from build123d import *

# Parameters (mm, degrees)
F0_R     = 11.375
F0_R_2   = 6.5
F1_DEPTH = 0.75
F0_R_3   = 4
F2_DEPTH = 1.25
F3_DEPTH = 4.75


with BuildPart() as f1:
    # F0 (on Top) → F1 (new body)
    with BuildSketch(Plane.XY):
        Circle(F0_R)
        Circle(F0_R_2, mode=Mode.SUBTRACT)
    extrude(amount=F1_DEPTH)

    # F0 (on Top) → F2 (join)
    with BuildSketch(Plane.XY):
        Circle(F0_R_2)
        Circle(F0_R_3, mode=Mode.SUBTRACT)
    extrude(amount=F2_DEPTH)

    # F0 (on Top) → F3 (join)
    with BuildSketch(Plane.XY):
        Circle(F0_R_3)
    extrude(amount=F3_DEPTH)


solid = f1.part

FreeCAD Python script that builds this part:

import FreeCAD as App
import Part
import Sketcher

V = App.Vector

doc = App.newDocument("Part")
body = doc.addObject("PartDesign::Body", "Body")

sketch1 = body.newObject("Sketcher::SketchObject", "Sketch")
sketch1.AttachmentSupport = (doc.getObject("XY_Plane"), [""])
sketch1.MapMode = "FlatFace"
sketch1.addGeometry(Part.Circle(V(0, 0, 0), V(0, 0, 1), 11), False)
sketch1.addGeometry(Part.Circle(V(0, 0, 0), V(0, 0, 1), 6), False)
sketch1.addConstraint(Sketcher.Constraint("Coincident", 0, 3, -1, 1))
sketch1.addConstraint(Sketcher.Constraint("Coincident", 1, 3, -1, 1))
sketch1.addConstraint(Sketcher.Constraint("Diameter", 1, 13.0))
sketch1.addConstraint(Sketcher.Constraint("Diameter", 0, 22.75))
pad1 = body.newObject("PartDesign::Pad", "Pad")
pad1.Profile = sketch1
pad1.Length = 0.75

sketch2 = body.newObject("Sketcher::SketchObject", "Sketch001")
sketch2.AttachmentSupport = (doc.getObject("XY_Plane"), [""])
sketch2.MapMode = "FlatFace"
sketch2.addGeometry(Part.Circle(V(0, 0, 0), V(0, 0, 1), 6.5), False)
sketch2.addGeometry(Part.Circle(V(0, 0, 0), V(0, 0, 1), 4), False)
sketch2.addConstraint(Sketcher.Constraint("Coincident", 0, 3, -1, 1))
sketch2.addConstraint(Sketcher.Constraint("Coincident", 1, 3, -1, 1))
sketch2.addConstraint(Sketcher.Constraint("Diameter", 0, 13.0))
sketch2.addConstraint(Sketcher.Constraint("Diameter", 1, 8.0))
pad2 = body.newObject("PartDesign::Pad", "Pad001")
pad2.Profile = sketch2
pad2.Length = 1.25

sketch3 = body.newObject("Sketcher::SketchObject", "Sketch002")
sketch3.AttachmentSupport = (doc.getObject("XY_Plane"), [""])
sketch3.MapMode = "FlatFace"
sketch3.addGeometry(Part.Circle(V(0, 0, 0), V(0, 0, 1), 4), False)
sketch3.addConstraint(Sketcher.Constraint("Coincident", 0, 3, -1, 1))
sketch3.addConstraint(Sketcher.Constraint("Diameter", 0, 8.0))
pad3 = body.newObject("PartDesign::Pad", "Pad002")
pad3.Profile = sketch3
pad3.Length = 4.75

doc.recompute()
